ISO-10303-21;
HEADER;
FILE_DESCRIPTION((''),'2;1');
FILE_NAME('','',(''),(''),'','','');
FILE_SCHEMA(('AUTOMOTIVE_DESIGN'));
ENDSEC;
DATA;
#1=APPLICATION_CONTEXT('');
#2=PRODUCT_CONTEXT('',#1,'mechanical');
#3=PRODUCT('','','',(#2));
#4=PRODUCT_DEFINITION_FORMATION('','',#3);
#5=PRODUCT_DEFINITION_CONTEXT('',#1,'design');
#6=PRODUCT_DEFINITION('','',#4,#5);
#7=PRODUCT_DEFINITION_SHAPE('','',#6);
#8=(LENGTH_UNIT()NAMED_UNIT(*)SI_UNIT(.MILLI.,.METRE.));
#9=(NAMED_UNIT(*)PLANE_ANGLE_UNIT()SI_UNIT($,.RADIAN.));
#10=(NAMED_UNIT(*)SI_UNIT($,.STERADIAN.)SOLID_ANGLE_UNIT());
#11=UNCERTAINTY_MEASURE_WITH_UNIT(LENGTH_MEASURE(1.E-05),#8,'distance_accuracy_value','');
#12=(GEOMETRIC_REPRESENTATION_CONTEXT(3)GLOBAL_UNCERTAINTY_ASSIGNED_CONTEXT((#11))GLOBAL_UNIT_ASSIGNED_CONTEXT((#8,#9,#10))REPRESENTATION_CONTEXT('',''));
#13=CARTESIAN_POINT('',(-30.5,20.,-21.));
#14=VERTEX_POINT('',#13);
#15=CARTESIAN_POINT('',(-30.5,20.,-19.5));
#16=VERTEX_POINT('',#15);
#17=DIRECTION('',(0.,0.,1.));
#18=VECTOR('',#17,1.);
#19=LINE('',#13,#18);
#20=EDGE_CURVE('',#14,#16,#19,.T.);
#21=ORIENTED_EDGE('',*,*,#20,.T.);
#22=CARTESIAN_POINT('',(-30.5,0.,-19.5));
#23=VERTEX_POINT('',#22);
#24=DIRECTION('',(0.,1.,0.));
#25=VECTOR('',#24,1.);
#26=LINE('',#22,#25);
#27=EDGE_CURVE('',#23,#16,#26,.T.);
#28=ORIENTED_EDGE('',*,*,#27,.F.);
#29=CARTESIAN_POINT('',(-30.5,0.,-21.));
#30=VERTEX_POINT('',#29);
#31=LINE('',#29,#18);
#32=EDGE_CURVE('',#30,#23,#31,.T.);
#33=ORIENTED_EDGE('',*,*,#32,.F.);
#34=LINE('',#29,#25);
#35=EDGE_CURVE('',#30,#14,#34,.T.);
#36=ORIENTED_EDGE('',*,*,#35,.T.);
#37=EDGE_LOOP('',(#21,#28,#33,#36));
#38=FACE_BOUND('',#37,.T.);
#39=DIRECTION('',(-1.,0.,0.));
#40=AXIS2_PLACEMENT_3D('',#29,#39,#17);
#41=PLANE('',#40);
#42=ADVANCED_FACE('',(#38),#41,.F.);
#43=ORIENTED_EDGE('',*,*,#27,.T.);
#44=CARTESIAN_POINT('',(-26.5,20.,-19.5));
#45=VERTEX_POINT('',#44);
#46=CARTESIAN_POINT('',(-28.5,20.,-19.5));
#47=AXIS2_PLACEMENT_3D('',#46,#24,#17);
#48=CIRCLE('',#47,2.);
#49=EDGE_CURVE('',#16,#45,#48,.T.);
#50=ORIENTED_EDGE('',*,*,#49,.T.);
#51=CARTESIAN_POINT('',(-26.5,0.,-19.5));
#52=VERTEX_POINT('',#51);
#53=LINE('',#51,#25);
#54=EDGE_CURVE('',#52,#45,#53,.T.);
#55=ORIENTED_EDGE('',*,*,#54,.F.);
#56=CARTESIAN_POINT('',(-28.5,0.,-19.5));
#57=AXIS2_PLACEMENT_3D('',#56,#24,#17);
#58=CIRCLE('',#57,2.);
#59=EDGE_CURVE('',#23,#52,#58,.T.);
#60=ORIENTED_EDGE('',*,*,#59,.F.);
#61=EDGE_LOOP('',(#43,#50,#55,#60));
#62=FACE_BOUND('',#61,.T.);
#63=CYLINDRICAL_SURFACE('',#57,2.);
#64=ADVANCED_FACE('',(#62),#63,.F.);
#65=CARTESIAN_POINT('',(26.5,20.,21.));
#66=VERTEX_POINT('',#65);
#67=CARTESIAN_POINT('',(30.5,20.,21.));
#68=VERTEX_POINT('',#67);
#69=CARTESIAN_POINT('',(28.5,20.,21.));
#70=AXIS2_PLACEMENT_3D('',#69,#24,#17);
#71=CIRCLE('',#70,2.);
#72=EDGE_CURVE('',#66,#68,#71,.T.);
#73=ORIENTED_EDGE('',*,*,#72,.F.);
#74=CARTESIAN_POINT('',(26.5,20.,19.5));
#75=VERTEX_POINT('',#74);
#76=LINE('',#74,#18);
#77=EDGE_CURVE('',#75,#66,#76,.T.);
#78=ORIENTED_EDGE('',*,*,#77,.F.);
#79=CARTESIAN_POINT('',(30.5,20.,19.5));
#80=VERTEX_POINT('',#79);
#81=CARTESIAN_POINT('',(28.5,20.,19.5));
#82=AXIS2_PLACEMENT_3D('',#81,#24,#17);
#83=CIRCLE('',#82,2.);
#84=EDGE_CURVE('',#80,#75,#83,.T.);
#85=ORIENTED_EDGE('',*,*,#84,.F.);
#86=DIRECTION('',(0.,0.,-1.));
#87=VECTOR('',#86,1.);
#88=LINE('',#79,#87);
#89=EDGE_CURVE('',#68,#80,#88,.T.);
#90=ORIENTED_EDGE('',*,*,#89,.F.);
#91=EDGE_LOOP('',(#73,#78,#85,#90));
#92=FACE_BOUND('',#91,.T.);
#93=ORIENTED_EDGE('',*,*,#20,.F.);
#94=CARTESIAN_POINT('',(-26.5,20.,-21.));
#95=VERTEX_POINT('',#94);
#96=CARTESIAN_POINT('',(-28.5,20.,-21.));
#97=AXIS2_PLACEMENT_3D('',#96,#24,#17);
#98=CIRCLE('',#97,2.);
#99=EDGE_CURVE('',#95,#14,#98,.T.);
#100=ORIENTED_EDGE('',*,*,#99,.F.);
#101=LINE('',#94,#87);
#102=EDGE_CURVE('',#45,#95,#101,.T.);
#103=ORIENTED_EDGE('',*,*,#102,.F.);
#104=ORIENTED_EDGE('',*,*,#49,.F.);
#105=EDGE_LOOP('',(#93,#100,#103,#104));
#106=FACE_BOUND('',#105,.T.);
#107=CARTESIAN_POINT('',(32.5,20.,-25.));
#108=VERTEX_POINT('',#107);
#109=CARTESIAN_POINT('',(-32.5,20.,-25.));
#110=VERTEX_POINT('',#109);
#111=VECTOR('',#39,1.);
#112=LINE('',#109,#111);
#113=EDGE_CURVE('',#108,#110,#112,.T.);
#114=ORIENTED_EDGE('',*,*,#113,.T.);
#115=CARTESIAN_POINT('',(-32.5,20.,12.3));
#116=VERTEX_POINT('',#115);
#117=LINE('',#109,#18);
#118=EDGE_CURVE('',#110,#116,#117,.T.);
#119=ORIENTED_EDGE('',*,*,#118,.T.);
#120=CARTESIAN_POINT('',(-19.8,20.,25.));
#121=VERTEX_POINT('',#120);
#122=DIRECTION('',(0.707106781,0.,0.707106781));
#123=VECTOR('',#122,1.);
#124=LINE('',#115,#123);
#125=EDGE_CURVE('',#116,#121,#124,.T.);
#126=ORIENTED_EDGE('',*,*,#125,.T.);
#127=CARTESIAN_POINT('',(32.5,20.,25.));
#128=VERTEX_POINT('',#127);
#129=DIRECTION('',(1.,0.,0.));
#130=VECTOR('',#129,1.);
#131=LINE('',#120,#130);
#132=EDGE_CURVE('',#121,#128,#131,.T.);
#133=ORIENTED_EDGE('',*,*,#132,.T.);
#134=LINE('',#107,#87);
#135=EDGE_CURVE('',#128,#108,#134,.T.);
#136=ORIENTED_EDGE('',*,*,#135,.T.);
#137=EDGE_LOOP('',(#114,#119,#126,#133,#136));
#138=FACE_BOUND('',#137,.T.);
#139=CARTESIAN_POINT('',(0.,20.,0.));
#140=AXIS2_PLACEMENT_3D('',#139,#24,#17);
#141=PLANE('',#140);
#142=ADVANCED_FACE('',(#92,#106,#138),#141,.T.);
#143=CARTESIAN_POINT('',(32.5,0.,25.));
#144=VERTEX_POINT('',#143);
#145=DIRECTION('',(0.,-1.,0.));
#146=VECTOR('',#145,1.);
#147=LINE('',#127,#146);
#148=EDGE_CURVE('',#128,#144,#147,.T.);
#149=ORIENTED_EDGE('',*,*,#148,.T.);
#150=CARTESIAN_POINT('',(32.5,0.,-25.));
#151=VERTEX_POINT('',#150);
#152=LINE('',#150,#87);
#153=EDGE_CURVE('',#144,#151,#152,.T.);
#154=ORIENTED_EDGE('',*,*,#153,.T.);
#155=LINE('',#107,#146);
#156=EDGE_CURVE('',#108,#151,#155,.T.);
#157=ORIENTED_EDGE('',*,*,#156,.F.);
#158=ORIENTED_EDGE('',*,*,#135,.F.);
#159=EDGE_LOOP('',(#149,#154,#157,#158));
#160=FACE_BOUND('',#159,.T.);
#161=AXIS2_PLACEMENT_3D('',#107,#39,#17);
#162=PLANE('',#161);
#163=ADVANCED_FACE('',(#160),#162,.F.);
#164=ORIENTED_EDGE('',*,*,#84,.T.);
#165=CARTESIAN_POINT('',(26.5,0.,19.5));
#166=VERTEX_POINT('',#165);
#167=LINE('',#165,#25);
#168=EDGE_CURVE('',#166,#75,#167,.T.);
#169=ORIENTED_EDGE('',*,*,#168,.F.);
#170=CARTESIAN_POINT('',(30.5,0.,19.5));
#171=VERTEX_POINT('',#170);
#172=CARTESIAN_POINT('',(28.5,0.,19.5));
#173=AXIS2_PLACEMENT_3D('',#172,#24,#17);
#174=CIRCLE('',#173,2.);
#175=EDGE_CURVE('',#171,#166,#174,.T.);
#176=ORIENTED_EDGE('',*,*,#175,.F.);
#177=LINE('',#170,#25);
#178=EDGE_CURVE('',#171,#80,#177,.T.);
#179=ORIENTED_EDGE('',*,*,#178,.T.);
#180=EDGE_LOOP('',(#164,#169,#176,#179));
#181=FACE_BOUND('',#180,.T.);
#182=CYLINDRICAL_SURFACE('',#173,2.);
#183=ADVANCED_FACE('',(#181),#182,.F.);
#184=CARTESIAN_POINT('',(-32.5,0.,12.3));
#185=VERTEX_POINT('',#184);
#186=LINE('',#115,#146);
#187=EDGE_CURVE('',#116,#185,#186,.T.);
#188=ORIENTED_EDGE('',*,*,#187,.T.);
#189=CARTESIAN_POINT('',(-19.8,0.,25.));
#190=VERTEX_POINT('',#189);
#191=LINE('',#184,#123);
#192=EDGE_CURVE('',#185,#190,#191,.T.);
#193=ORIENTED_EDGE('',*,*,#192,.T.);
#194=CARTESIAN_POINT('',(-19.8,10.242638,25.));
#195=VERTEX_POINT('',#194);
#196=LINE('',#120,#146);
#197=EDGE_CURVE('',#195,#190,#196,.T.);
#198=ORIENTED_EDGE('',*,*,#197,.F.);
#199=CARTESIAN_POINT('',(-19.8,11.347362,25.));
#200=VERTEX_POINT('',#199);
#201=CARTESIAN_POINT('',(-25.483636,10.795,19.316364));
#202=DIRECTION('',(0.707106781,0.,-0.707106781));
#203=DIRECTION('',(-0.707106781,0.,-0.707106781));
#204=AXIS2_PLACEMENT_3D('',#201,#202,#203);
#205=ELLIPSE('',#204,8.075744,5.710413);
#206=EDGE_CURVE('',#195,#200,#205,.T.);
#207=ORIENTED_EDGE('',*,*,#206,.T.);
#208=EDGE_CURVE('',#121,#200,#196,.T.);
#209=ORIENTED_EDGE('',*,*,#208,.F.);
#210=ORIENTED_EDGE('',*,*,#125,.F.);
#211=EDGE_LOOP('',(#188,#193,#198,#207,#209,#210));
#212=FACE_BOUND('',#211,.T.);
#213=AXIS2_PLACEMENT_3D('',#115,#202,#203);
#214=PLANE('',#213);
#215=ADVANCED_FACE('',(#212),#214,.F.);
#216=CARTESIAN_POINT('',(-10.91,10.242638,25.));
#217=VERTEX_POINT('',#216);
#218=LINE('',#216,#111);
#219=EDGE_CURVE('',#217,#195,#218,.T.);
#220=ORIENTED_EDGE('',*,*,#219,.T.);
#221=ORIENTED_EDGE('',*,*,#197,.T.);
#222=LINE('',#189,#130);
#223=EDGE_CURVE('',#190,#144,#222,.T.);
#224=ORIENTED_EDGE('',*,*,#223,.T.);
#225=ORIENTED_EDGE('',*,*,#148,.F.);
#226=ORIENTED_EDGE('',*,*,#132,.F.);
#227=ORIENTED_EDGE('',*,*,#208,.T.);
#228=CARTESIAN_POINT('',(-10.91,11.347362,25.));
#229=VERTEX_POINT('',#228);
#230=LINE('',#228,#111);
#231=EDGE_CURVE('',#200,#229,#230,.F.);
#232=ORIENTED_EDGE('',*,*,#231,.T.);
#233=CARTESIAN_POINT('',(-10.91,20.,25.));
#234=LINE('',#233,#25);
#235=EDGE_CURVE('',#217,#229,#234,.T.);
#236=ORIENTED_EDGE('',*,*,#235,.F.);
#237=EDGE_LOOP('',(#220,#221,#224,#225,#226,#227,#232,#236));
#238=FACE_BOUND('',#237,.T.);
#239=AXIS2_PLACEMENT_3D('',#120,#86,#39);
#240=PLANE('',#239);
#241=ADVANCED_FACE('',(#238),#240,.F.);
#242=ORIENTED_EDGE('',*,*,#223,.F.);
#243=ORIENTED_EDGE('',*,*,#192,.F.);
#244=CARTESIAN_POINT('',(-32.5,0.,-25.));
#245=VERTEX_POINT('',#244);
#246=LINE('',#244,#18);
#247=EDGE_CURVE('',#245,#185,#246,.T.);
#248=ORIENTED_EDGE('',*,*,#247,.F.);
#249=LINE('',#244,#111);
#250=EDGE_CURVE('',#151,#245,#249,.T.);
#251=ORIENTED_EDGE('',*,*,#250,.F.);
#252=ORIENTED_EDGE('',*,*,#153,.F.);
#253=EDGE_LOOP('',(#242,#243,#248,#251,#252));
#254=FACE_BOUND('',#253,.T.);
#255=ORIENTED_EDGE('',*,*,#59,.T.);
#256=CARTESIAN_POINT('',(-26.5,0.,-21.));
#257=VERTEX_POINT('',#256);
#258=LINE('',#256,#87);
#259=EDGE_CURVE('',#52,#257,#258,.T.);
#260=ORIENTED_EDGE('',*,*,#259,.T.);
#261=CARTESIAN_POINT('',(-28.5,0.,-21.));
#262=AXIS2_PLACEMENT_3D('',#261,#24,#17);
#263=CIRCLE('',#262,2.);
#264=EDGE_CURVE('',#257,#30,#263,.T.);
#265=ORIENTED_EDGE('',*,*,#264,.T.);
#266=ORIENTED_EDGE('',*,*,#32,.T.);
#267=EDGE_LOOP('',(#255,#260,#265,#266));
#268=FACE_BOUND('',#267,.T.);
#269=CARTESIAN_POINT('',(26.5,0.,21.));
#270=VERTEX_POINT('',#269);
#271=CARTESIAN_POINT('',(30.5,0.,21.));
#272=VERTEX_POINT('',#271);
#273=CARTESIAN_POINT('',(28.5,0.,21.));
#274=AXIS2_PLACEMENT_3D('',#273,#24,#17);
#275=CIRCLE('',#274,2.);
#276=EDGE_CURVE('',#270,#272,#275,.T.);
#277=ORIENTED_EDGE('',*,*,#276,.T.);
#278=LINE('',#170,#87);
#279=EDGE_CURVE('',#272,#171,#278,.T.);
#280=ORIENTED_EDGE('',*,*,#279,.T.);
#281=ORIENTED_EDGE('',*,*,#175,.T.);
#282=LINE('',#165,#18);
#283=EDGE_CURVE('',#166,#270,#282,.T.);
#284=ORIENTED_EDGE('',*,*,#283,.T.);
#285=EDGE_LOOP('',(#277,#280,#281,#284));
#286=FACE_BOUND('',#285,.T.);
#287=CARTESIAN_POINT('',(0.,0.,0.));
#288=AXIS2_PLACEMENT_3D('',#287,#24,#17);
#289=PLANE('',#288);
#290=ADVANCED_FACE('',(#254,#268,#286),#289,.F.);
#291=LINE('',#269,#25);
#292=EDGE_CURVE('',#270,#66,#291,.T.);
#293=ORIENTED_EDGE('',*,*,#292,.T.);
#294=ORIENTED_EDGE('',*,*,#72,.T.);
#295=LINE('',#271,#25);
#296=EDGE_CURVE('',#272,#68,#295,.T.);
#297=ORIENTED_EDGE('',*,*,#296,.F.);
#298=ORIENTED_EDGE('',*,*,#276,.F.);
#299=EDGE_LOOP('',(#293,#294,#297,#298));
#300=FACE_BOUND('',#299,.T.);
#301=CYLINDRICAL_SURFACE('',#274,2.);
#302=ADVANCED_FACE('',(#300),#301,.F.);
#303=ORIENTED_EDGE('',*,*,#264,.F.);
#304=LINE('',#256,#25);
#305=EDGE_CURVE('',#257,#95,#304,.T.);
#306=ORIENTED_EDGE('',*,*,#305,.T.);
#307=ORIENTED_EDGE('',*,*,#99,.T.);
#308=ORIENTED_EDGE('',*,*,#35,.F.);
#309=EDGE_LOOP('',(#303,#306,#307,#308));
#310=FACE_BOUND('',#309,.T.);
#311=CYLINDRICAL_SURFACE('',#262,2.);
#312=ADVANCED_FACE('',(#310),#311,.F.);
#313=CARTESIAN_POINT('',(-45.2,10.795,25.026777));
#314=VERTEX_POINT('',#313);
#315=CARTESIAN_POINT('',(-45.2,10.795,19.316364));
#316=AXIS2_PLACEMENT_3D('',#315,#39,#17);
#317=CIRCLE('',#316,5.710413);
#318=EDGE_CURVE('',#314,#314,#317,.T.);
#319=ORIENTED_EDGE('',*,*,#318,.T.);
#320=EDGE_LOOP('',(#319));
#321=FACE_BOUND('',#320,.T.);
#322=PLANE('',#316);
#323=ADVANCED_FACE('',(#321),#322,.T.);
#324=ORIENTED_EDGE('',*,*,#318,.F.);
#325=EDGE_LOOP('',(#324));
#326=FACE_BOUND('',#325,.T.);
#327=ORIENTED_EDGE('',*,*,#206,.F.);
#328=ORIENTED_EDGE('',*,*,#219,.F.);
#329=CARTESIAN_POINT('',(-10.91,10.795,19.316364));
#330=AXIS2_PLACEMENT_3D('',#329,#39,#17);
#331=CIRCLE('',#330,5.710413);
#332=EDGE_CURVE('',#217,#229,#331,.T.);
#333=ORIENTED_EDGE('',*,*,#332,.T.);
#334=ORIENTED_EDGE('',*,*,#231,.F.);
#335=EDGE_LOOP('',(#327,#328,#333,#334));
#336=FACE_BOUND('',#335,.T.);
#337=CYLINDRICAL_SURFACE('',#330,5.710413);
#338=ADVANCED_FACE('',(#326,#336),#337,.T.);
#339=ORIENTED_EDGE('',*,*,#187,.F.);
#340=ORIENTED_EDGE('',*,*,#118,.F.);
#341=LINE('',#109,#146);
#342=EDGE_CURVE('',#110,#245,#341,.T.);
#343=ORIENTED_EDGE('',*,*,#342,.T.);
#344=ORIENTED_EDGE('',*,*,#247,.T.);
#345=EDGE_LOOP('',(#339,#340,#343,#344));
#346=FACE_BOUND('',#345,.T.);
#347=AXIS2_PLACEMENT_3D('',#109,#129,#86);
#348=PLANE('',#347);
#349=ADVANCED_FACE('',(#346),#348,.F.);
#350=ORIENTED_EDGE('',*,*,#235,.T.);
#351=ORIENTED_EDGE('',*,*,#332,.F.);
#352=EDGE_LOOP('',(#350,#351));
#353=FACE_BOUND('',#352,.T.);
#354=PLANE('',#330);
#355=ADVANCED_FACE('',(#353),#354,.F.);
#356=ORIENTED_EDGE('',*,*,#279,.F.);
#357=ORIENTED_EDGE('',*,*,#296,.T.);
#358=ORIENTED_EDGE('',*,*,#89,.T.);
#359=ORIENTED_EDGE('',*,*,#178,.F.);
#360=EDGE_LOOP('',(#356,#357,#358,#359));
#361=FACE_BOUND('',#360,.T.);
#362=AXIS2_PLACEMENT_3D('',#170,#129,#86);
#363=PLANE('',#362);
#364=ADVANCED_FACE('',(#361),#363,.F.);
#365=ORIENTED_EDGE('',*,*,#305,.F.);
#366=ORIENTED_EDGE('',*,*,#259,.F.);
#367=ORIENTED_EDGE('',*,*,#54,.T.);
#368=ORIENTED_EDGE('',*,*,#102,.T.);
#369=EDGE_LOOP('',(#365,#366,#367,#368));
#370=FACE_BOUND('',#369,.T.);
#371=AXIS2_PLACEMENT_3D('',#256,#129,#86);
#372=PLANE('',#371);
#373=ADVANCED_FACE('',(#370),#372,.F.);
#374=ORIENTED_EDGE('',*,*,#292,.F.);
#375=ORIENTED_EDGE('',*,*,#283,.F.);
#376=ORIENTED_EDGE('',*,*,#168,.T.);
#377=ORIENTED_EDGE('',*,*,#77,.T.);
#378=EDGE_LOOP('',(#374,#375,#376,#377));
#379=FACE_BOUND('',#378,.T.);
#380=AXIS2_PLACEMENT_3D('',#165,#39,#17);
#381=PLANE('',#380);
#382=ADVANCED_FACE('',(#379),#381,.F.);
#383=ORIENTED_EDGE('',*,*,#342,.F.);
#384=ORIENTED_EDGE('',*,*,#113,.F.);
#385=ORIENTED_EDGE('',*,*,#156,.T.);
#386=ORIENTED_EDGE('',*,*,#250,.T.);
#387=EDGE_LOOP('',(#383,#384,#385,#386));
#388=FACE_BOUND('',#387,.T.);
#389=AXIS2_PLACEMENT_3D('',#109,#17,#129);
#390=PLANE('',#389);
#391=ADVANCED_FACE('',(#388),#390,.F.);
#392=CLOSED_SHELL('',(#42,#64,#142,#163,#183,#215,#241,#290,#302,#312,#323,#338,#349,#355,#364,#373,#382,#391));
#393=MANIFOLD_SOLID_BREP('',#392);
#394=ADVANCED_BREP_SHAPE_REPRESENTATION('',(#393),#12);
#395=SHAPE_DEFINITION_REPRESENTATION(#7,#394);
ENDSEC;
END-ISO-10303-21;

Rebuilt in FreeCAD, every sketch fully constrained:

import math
import FreeCAD as App
import Part
import Sketcher

V = App.Vector
Q = App.Units.Quantity

doc = App.newDocument("Part")
body = doc.addObject("PartDesign::Body", "Body")

# Sketch on XZ plane
sketch1 = body.newObject("Sketcher::SketchObject", "Sketch")
sketch1.AttachmentSupport = (doc.getObject("XZ_Plane"), [""])
sketch1.MapMode = "FlatFace"
sketch1.addGeometry([
    Part.LineSegment(V(-33, 12, 0), V(-20, 25, 0)),  # 0
    Part.LineSegment(V(-20, 25, 0), V(33, 25, 0)),  # 1
    Part.LineSegment(V(33, 25, 0), V(33, -25, 0)),  # 2
    Part.LineSegment(V(33, -25, 0), V(-33, -25, 0)),  # 3
    Part.LineSegment(V(-33, -25, 0), V(-33, 12, 0)),  # 4
], False)
sketch1.addConstraint([
    Sketcher.Constraint("Coincident", 0, 2, 1, 1),
    Sketcher.Constraint("Coincident", 1, 2, 2, 1),
    Sketcher.Constraint("Coincident", 2, 2, 3, 1),
    Sketcher.Constraint("Coincident", 3, 2, 4, 1),
    Sketcher.Constraint("Coincident", 4, 2, 0, 1),
    Sketcher.Constraint("Horizontal", 1),
    Sketcher.Constraint("Vertical", 2),
    Sketcher.Constraint("Horizontal", 3),
    Sketcher.Constraint("Vertical", 4),
    Sketcher.Constraint("Symmetric", 1, 2, 3, 2, -1, 1),
    Sketcher.Constraint("DistanceX", 3, 2, 3, 1, 65.0),
    Sketcher.Constraint("DistanceY", 2, 2, 2, 1, 50.0),
    Sketcher.Constraint("Angle", 0, Q("45 deg")),
    Sketcher.Constraint("DistanceX", 1, 1, 1, 2, 52.3),
])
pad1 = body.newObject("PartDesign::Pad", "Pad")
pad1.Profile = sketch1
pad1.Length = 20
pad1.Reversed = True

# Sketch on YZ plane
sketch2 = body.newObject("Sketcher::SketchObject", "Sketch001")
sketch2.AttachmentSupport = (doc.getObject("YZ_Plane"), [""])
sketch2.MapMode = "FlatFace"
sketch2.AttachmentOffset = App.Placement(V(0, 0, -32.5), App.Rotation())
sketch2.addGeometry(Part.Circle(V(11, 19, 0), V(0, 0, 1), 6), False)
sketch2.addConstraint([
    Sketcher.Constraint("Diameter", 0, 11.420827),
    Sketcher.Constraint("DistanceX", -1, 1, 0, 3, 10.795),
    Sketcher.Constraint("DistanceY", -1, 1, 0, 3, 19.316364),
])
pad2 = body.newObject("PartDesign::Pad", "Pad001")
pad2.Profile = sketch2
pad2.Type = "TwoLengths"
pad2.Length = 12.7
pad2.Length2 = 21.59
pad2.Reversed = True

# Sketch on XZ plane
sketch3 = body.newObject("Sketcher::SketchObject", "Sketch002")
sketch3.AttachmentSupport = (doc.getObject("XZ_Plane"), [""])
sketch3.MapMode = "FlatFace"
sketch3.AttachmentOffset = App.Placement(V(0, 0, -20), App.Rotation())
sketch3.addGeometry([
    Part.LineSegment(V(30.5, 21, 0), V(30.5, 19.5, 0)),  # 0
    Part.ArcOfCircle(Part.Circle(V(28.5, 19.5, 0), V(0, 0, 1), 2), math.radians(180), math.radians(360)),  # 1
    Part.LineSegment(V(26.5, 19.5, 0), V(26.5, 21, 0)),  # 2
    Part.ArcOfCircle(Part.Circle(V(28.5, 21, 0), V(0, 0, 1), 2), math.radians(0), math.radians(180)),  # 3
    Part.LineSegment(V(-26.5, -19.5, 0), V(-26.5, -21, 0)),  # 4
    Part.ArcOfCircle(Part.Circle(V(-28.5, -21, 0), V(0, 0, 1), 2), math.radians(180), math.radians(360)),  # 5
    Part.LineSegment(V(-30.5, -21, 0), V(-30.5, -19.5, 0)),  # 6
    Part.ArcOfCircle(Part.Circle(V(-28.5, -19.5, 0), V(0, 0, 1), 2), math.radians(0), math.radians(180)),  # 7
], False)
sketch3.addConstraint([
    Sketcher.Constraint("Tangent", 0, 2, 1, 2),
    Sketcher.Constraint("Tangent", 1, 1, 2, 1),
    Sketcher.Constraint("Tangent", 2, 2, 3, 2),
    Sketcher.Constraint("Tangent", 3, 1, 0, 1),
    Sketcher.Constraint("Tangent", 4, 2, 5, 2),
    Sketcher.Constraint("Tangent", 5, 1, 6, 1),
    Sketcher.Constraint("Tangent", 6, 2, 7, 2),
    Sketcher.Constraint("Tangent", 7, 1, 4, 1),
    Sketcher.Constraint("Vertical", 0),
    Sketcher.Constraint("Vertical", 2),
    Sketcher.Constraint("Vertical", 4),
    Sketcher.Constraint("Vertical", 6),
    Sketcher.Constraint("Equal", 3, 5),
    Sketcher.Constraint("Symmetric", 3, 3, 5, 3, -1, 1),
    Sketcher.Constraint("Equal", 2, 4),
    Sketcher.Constraint("Radius", 1, 2.0),
    Sketcher.Constraint("DistanceY", 0, 2, 0, 1, 1.5),
    Sketcher.Constraint("DistanceY", -1, 1, 3, 3, 21.0),
    Sketcher.Constraint("DistanceX", 5, 3, 1, 3, 57.0),
])
pocket1 = body.newObject("PartDesign::Pocket", "Pocket")
pocket1.Profile = sketch3
pocket1.Type = "ThroughAll"
pocket1.Reversed = True

doc.recompute()
